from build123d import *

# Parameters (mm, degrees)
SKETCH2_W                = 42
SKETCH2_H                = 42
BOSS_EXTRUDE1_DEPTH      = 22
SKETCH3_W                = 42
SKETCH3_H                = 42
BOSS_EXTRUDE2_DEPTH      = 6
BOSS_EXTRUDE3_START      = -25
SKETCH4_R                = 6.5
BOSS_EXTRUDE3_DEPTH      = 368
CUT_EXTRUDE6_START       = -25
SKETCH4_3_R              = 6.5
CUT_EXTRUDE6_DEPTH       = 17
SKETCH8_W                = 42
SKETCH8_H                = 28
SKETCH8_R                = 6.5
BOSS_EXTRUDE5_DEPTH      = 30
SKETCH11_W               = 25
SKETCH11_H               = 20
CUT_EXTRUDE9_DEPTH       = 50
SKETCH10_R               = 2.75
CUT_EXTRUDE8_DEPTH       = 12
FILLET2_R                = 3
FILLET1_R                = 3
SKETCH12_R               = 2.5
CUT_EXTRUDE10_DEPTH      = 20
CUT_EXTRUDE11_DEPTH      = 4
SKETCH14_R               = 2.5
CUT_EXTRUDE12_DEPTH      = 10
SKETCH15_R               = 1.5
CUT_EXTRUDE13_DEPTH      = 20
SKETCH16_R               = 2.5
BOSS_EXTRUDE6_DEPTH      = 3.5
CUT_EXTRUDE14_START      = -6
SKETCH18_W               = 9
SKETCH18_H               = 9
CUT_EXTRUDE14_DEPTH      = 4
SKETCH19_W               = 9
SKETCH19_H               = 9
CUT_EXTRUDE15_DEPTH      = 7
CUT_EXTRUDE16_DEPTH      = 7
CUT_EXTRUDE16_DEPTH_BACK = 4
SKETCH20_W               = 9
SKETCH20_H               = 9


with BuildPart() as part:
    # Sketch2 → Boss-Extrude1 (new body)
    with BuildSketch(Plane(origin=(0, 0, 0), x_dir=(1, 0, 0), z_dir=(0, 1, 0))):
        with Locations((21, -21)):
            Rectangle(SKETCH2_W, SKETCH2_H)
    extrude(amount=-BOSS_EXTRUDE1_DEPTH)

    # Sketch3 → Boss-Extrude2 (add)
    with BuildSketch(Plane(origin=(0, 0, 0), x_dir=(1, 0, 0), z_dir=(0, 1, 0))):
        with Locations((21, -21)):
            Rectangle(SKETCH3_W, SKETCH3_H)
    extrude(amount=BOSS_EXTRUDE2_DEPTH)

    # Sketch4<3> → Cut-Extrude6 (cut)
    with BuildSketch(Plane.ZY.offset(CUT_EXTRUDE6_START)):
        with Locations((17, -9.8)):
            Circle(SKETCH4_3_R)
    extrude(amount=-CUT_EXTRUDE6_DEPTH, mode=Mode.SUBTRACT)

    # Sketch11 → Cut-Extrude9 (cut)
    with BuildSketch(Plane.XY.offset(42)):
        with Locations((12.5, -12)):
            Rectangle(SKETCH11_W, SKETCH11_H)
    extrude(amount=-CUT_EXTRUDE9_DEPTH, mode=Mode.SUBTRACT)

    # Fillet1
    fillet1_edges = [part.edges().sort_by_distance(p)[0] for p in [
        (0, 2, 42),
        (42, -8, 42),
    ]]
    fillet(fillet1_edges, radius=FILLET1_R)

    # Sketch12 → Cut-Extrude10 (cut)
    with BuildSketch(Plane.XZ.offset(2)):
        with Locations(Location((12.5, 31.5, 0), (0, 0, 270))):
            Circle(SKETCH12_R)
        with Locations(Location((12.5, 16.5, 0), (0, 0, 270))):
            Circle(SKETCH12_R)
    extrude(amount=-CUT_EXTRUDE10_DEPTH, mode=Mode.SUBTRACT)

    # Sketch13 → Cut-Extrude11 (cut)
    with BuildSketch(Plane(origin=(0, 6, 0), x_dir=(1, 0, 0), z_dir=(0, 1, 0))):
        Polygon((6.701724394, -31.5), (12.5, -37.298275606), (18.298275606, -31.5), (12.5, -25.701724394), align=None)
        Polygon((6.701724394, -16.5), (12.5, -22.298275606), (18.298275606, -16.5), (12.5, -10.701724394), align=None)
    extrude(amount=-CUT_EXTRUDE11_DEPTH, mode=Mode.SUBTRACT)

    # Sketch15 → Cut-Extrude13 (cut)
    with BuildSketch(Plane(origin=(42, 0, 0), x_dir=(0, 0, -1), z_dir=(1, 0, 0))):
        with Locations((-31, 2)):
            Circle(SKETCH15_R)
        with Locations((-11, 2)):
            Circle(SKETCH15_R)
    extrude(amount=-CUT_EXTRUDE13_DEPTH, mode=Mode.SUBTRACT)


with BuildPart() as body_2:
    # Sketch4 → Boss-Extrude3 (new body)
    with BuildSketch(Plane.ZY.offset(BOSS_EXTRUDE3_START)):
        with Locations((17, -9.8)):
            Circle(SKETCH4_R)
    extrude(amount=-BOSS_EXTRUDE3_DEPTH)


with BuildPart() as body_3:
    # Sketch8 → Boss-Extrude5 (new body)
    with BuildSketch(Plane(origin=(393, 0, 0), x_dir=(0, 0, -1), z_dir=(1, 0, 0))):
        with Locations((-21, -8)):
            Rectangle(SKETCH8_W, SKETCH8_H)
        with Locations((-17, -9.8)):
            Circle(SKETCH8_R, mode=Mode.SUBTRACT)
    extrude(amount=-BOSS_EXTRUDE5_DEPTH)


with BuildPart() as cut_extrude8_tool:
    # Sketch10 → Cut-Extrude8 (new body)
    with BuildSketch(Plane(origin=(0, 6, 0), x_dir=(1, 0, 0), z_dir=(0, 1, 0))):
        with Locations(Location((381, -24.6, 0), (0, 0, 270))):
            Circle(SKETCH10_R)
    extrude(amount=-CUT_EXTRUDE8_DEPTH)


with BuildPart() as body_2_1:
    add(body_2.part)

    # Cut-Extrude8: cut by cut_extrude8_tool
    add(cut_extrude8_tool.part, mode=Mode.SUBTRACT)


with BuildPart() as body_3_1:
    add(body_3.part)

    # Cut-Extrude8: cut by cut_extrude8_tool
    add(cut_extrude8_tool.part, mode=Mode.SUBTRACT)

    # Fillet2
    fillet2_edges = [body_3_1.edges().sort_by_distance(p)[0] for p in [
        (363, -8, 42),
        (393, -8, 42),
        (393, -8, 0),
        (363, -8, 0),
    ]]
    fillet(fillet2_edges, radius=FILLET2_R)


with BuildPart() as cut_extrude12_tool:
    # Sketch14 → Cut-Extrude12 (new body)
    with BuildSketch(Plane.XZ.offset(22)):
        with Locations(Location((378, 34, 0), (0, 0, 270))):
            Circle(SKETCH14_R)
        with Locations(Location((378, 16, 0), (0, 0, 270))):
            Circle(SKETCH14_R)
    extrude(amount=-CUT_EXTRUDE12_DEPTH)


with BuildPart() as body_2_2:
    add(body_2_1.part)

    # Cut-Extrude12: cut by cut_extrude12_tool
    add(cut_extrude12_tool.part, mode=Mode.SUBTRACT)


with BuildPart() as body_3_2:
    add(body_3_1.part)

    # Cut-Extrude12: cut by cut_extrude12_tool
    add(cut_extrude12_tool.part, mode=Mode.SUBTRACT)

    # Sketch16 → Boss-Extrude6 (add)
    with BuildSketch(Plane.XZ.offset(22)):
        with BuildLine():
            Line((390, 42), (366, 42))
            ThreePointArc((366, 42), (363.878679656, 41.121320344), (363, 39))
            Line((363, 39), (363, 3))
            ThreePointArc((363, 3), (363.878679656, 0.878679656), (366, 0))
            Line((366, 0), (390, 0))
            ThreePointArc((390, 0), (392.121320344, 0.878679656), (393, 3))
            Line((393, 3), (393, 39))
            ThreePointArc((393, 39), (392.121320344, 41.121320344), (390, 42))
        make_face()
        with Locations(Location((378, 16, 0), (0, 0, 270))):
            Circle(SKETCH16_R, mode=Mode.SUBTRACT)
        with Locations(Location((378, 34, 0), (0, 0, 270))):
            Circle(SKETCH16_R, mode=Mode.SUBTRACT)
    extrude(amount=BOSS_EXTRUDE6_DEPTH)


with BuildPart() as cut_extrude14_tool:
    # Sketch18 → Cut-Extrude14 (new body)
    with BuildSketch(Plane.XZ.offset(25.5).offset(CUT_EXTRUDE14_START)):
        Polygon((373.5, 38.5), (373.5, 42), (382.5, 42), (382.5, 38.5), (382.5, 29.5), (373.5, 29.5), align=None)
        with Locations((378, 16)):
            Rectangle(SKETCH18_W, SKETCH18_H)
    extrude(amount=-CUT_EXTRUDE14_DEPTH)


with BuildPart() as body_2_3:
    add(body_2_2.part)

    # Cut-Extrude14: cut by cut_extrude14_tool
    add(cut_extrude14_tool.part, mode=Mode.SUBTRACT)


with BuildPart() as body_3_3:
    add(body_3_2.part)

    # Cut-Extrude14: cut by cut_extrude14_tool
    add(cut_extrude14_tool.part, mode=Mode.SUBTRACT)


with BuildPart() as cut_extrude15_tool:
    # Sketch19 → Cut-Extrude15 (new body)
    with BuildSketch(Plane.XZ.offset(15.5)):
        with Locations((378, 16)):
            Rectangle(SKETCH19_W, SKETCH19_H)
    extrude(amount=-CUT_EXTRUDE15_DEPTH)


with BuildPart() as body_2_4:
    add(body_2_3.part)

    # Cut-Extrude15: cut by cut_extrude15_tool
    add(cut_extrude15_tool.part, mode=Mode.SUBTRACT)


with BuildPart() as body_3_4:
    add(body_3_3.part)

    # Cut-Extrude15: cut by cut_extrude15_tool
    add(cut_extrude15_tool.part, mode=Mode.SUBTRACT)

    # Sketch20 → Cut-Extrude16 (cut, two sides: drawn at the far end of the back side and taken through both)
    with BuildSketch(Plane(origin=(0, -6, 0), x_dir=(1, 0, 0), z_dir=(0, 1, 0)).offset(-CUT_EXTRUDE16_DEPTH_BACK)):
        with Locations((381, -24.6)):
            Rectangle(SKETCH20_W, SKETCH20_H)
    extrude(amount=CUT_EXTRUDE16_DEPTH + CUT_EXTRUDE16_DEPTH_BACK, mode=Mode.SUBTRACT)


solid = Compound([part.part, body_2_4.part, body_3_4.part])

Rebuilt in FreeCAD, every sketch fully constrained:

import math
import FreeCAD as App
import Part
import Sketcher

V = App.Vector
Q = App.Units.Quantity


def edges_at(feature, points):
    """Names of the edges that pass closest to the given points."""
    edges = feature.Shape.Edges
    near = lambda p: min(range(len(edges)), key=lambda i: edges[i].distToShape(Part.Vertex(*p))[0])
    return sorted({f"Edge{near(p) + 1}" for p in points})


def add_polygon(sketch, points):
    """Adds a closed chain of lines whose ends are joined by coincident constraints."""
    first, n = sketch.GeometryCount, len(points)
    for a, b in zip(points, points[1:] + points[:1]):
        sketch.addGeometry(Part.LineSegment(App.Vector(*a, 0), App.Vector(*b, 0)), False)
    for i in range(n):
        sketch.addConstraint(Sketcher.Constraint("Coincident", first + i, 2, first + (i + 1) % n, 1))

doc = App.newDocument("Part")
body = doc.addObject("PartDesign::Body", "Body")

sketch1 = body.newObject("Sketcher::SketchObject", "Sketch")
sketch1.AttachmentSupport = (doc.getObject("XZ_Plane"), [""])
sketch1.MapMode = "FlatFace"
add_polygon(sketch1, [(0, 0), (0, 42), (42, 42), (42, 0)])
sketch1.addConstraint([
    Sketcher.Constraint("Vertical", 0),
    Sketcher.Constraint("Horizontal", 1),
    Sketcher.Constraint("Vertical", 2),
    Sketcher.Constraint("Horizontal", 3),
    Sketcher.Constraint("Coincident", 3, 2, -1, 1),
    Sketcher.Constraint("Equal", 3, 0),
    Sketcher.Constraint("DistanceX", 1, 1, 1, 2, Q("42 mm")),
])
pad1 = body.newObject("PartDesign::Pad", "Pad")
pad1.Profile = sketch1
pad1.Length = 22

sketch2 = body.newObject("Sketcher::SketchObject", "Sketch001")
sketch2.AttachmentSupport = (doc.getObject("XZ_Plane"), [""])
sketch2.MapMode = "FlatFace"
add_polygon(sketch2, [(0, 0), (0, 42), (42, 42), (42, 0)])
sketch2.addConstraint([
    Sketcher.Constraint("Vertical", 0),
    Sketcher.Constraint("Horizontal", 1),
    Sketcher.Constraint("Vertical", 2),
    Sketcher.Constraint("Horizontal", 3),
    Sketcher.Constraint("Coincident", 3, 2, -1, 1),
    Sketcher.Constraint("Equal", 3, 0),
    Sketcher.Constraint("DistanceX", 1, 1, 1, 2, Q("42 mm")),
])
pad2 = body.newObject("PartDesign::Pad", "Pad001")
pad2.Profile = sketch2
pad2.Length = 6
pad2.Reversed = True

sketch3 = body.newObject("Sketcher::SketchObject", "Sketch002")
sketch3.AttachmentSupport = (doc.getObject("YZ_Plane"), [""])
sketch3.MapMode = "FlatFace"
sketch3.AttachmentOffset = App.Placement(V(0, 0, 25), App.Rotation())
sketch3.addGeometry(Part.Circle(V(-10, 17, 0), V(0, 0, 1), 6), False)
sketch3.addConstraint([
    Sketcher.Constraint("Diameter", 0, Q("13 mm")),
    Sketcher.Constraint("DistanceY", -1, 1, 0, 3, Q("17 mm")),
    Sketcher.Constraint("DistanceX", 0, 3, -1, 1, Q("9.8 mm")),
])
pocket1 = body.newObject("PartDesign::Pocket", "Pocket")
pocket1.Profile = sketch3
pocket1.Length = 17
pocket1.Reversed = True

sketch4 = body.newObject("Sketcher::SketchObject", "Sketch003")
sketch4.AttachmentSupport = (doc.getObject("XY_Plane"), [""])
sketch4.MapMode = "FlatFace"
sketch4.AttachmentOffset = App.Placement(V(0, 0, 42), App.Rotation())
add_polygon(sketch4, [(0, -2), (0, -22), (25, -22), (25, -2)])
sketch4.addConstraint([
    Sketcher.Constraint("Vertical", 0),
    Sketcher.Constraint("Horizontal", 1),
    Sketcher.Constraint("Vertical", 2),
    Sketcher.Constraint("Horizontal", 3),
    Sketcher.Constraint("PointOnObject", 0, 2, -2),
    Sketcher.Constraint("DistanceX", 1, 1, 1, 2, Q("25 mm")),
    Sketcher.Constraint("DistanceY", 0, 2, 0, 1, Q("20 mm")),
    Sketcher.Constraint("DistanceY", 0, 2, -1, 1, Q("22 mm")),
])
pocket2 = body.newObject("PartDesign::Pocket", "Pocket001")
pocket2.Profile = sketch4
pocket2.Length = 50
doc.recompute()

fillet = body.newObject("PartDesign::Fillet", "Fillet")
fillet.Base = (pocket2, edges_at(pocket2, [(0, 2, 42), (42, -8, 42)]))
fillet.Radius = 3

sketch5 = body.newObject("Sketcher::SketchObject", "Sketch004")
sketch5.AttachmentSupport = (doc.getObject("XZ_Plane"), [""])
sketch5.MapMode = "FlatFace"
sketch5.AttachmentOffset = App.Placement(V(0, 0, 2), App.Rotation())
sketch5.addGeometry([
    Part.Circle(V(12.5, 31.5, 0), V(0, 0, 1), 2.5),
    Part.Circle(V(12.5, 16.5, 0), V(0, 0, 1), 2.5),
], False)
sketch5.addConstraint([
    Sketcher.Constraint("Equal", 0, 1),
    Sketcher.Constraint("Vertical", 0, 3, 1, 3),
    Sketcher.Constraint("Diameter", 0, Q("5 mm")),
    Sketcher.Constraint("DistanceY", 1, 3, 0, 3, Q("15 mm")),
    Sketcher.Constraint("DistanceX", -1, 1, 0, 3, Q("12.5 mm")),
    Sketcher.Constraint("DistanceY", -1, 1, 0, 3, Q("31.5 mm")),
])
pocket3 = body.newObject("PartDesign::Pocket", "Pocket002")
pocket3.Profile = sketch5
pocket3.Length = 20

sketch6 = body.newObject("Sketcher::SketchObject", "Sketch005")
sketch6.AttachmentSupport = (doc.getObject("XZ_Plane"), [""])
sketch6.MapMode = "FlatFace"
sketch6.AttachmentOffset = App.Placement(V(0, 0, -6), App.Rotation())
add_polygon(sketch6, [(7, 32), (12, 37), (18, 32), (12, 26)])
add_polygon(sketch6, [(7, 16), (12, 22), (18, 16), (12, 11)])
sketch6.addConstraint([
    Sketcher.Constraint("Perpendicular", 0, 1),
    Sketcher.Constraint("Perpendicular", 1, 2),
    Sketcher.Constraint("Perpendicular", 2, 3),
    Sketcher.Constraint("Perpendicular", 3, 4),
    Sketcher.Constraint("Perpendicular", 4, 5),
    Sketcher.Constraint("Perpendicular", 5, 6),
    Sketcher.Constraint("Perpendicular", 6, 7),
    Sketcher.Constraint("Horizontal", 1, 2, 3, 2),
    Sketcher.Constraint("Horizontal", 5, 2, 7, 2),
    Sketcher.Constraint("Vertical", 0, 2, 2, 2),
    Sketcher.Constraint("Vertical", 2, 2, 4, 2),
    Sketcher.Constraint("Vertical", 1, 2, 5, 2),
    Sketcher.Constraint("DistanceY", 4, 2, 0, 2, Q("15 mm")),
    Sketcher.Constraint("Distance", 0, Q("8.2 mm")),
    Sketcher.Constraint("DistanceX", -1, 1, 0, 2, Q("12.5 mm")),
    Sketcher.Constraint("DistanceY", -1, 1, 1, 2, Q("31.5 mm")),
])
pocket4 = body.newObject("PartDesign::Pocket", "Pocket003")
pocket4.Profile = sketch6
pocket4.Length = 4
pocket4.Reversed = True

sketch7 = body.newObject("Sketcher::SketchObject", "Sketch006")
sketch7.AttachmentSupport = (doc.getObject("YZ_Plane"), [""])
sketch7.MapMode = "FlatFace"
sketch7.AttachmentOffset = App.Placement(V(0, 0, 42), App.Rotation())
sketch7.addGeometry([
    Part.Circle(V(2, 31, 0), V(0, 0, 1), 1.5),
    Part.Circle(V(2, 11, 0), V(0, 0, 1), 1.5),
], False)
sketch7.addConstraint([
    Sketcher.Constraint("Equal", 0, 1),
    Sketcher.Constraint("Vertical", 0, 3, 1, 3),
    Sketcher.Constraint("Diameter", 0, Q("3 mm")),
    Sketcher.Constraint("DistanceX", -1, 1, 0, 3, Q("2 mm")),
    Sketcher.Constraint("DistanceY", -1, 1, 0, 3, Q("31 mm")),
    Sketcher.Constraint("DistanceY", -1, 1, 1, 3, Q("11 mm")),
])
pocket5 = body.newObject("PartDesign::Pocket", "Pocket004")
pocket5.Profile = sketch7
pocket5.Length = 20
body2 = doc.addObject("PartDesign::Body", "Body001")

sketch8 = body2.newObject("Sketcher::SketchObject", "Sketch007")
sketch8.AttachmentSupport = (doc.getObject("YZ_Plane001"), [""])
sketch8.MapMode = "FlatFace"
sketch8.AttachmentOffset = App.Placement(V(0, 0, 25), App.Rotation())
sketch8.addGeometry(Part.Circle(V(-10, 17, 0), V(0, 0, 1), 6), False)
sketch8.addConstraint([
    Sketcher.Constraint("Diameter", 0, Q("13 mm")),
    Sketcher.Constraint("DistanceY", -1, 1, 0, 3, Q("17 mm")),
    Sketcher.Constraint("DistanceX", 0, 3, -1, 1, Q("9.8 mm")),
])
pad3 = body2.newObject("PartDesign::Pad", "Pad002")
pad3.Profile = sketch8
pad3.Length = 368
body3 = doc.addObject("PartDesign::Body", "Body002")

sketch9 = body3.newObject("Sketcher::SketchObject", "Sketch008")
sketch9.AttachmentSupport = (doc.getObject("YZ_Plane002"), [""])
sketch9.MapMode = "FlatFace"
sketch9.AttachmentOffset = App.Placement(V(0, 0, 393), App.Rotation())
add_polygon(sketch9, [(6, 42), (-22, 42), (-22, 0), (6, 0)])
sketch9.addGeometry(Part.Circle(V(-10, 17, 0), V(0, 0, 1), 6), False)
sketch9.addConstraint([
    Sketcher.Constraint("Horizontal", 0),
    Sketcher.Constraint("Vertical", 1),
    Sketcher.Constraint("Horizontal", 2),
    Sketcher.Constraint("Vertical", 3),
    Sketcher.Constraint("PointOnObject", 1, 2, -1),
    Sketcher.Constraint("Diameter", 4, Q("13 mm")),
    Sketcher.Constraint("DistanceX", 0, 2, 0, 1, Q("28 mm")),
    Sketcher.Constraint("DistanceY", 1, 2, 1, 1, Q("42 mm")),
    Sketcher.Constraint("DistanceY", -1, 1, 4, 3, Q("17 mm")),
    Sketcher.Constraint("DistanceX", 0, 2, -1, 1, Q("22 mm")),
    Sketcher.Constraint("DistanceX", 4, 3, -1, 1, Q("9.8 mm")),
])
pad4 = body3.newObject("PartDesign::Pad", "Pad003")
pad4.Profile = sketch9
pad4.Length = 30
pad4.Reversed = True
body4 = doc.addObject("PartDesign::Body", "Body003")

sketch10 = body4.newObject("Sketcher::SketchObject", "Sketch009")
sketch10.AttachmentSupport = (doc.getObject("XZ_Plane003"), [""])
sketch10.MapMode = "FlatFace"
sketch10.AttachmentOffset = App.Placement(V(0, 0, -6), App.Rotation())
sketch10.addGeometry(Part.Circle(V(381, 24.6, 0), V(0, 0, 1), 2.8), False)
sketch10.addConstraint([
    Sketcher.Constraint("Diameter", 0, Q("5.5 mm")),
    Sketcher.Constraint("DistanceX", -1, 1, 0, 3, Q("381 mm")),
    Sketcher.Constraint("DistanceY", -1, 1, 0, 3, Q("24.6 mm")),
])
pad5 = body4.newObject("PartDesign::Pad", "Pad004")
pad5.Profile = sketch10
pad5.Length = 12
doc.recompute()

body5 = doc.addObject("PartDesign::Body", "Body004")
body5.BaseFeature = body4
boolean = body2.newObject("PartDesign::Boolean", "Boolean")
boolean.Type = "Cut"
boolean.addObjects([body5])
doc.recompute()

boolean2 = body3.newObject("PartDesign::Boolean", "Boolean001")
boolean2.Type = "Cut"
boolean2.addObjects([body4])
doc.recompute()

fillet2 = body3.newObject("PartDesign::Fillet", "Fillet001")
fillet2.Base = (boolean2, edges_at(boolean2, [
    (363, -8, 42),
    (393, -8, 42),
    (393, -8, 0),
    (363, -8, 0),
]))
fillet2.Radius = 3
body6 = doc.addObject("PartDesign::Body", "Body005")
body6.AllowCompound = True

sketch11 = body6.newObject("Sketcher::SketchObject", "Sketch010")
sketch11.AttachmentSupport = (doc.getObject("XZ_Plane005"), [""])
sketch11.MapMode = "FlatFace"
sketch11.AttachmentOffset = App.Placement(V(0, 0, 22), App.Rotation())
sketch11.addGeometry([
    Part.Circle(V(378, 34, 0), V(0, 0, 1), 2.5),
    Part.Circle(V(378, 16, 0), V(0, 0, 1), 2.5),
], False)
sketch11.addConstraint([
    Sketcher.Constraint("Equal", 0, 1),
    Sketcher.Constraint("Vertical", 0, 3, 1, 3),
    Sketcher.Constraint("Diameter", 0, Q("5 mm")),
    Sketcher.Constraint("DistanceX", -1, 1, 0, 3, Q("378 mm")),
    Sketcher.Constraint("DistanceY", -1, 1, 0, 3, Q("34 mm")),
    Sketcher.Constraint("DistanceY", -1, 1, 1, 3, Q("16 mm")),
])
pad6 = body6.newObject("PartDesign::Pad", "Pad005")
pad6.Profile = sketch11
pad6.Length = 10
pad6.Reversed = True
doc.recompute()

body7 = doc.addObject("PartDesign::Body", "Body006")
body7.BaseFeature = body6
boolean3 = body2.newObject("PartDesign::Boolean", "Boolean002")
boolean3.Type = "Cut"
boolean3.addObjects([body7])
doc.recompute()

boolean4 = body3.newObject("PartDesign::Boolean", "Boolean003")
boolean4.Type = "Cut"
boolean4.addObjects([body6])

sketch12 = body3.newObject("Sketcher::SketchObject", "Sketch011")
sketch12.AttachmentSupport = (doc.getObject("XZ_Plane002"), [""])
sketch12.MapMode = "FlatFace"
sketch12.AttachmentOffset = App.Placement(V(0, 0, 22), App.Rotation())
sketch12.addGeometry([
    Part.LineSegment(V(390, 42, 0), V(366, 42, 0)),
    Part.ArcOfCircle(Part.Circle(V(366, 39, 0), V(0, 0, 1), 3), math.radians(90), math.radians(180)),
    Part.LineSegment(V(363, 39, 0), V(363, 3, 0)),
    Part.ArcOfCircle(Part.Circle(V(366, 3, 0), V(0, 0, 1), 3), math.radians(180), math.radians(270)),
    Part.LineSegment(V(366, 0, 0), V(390, 0, 0)),
    Part.ArcOfCircle(Part.Circle(V(390, 3, 0), V(0, 0, 1), 3), math.radians(-90), math.radians(0)),
    Part.LineSegment(V(393, 3, 0), V(393, 39, 0)),
    Part.ArcOfCircle(Part.Circle(V(390, 39, 0), V(0, 0, 1), 3), math.radians(0), math.radians(90)),
    Part.Circle(V(378, 16, 0), V(0, 0, 1), 2.5),
    Part.Circle(V(378, 34, 0), V(0, 0, 1), 2.5),
], False)
sketch12.addConstraint([
    Sketcher.Constraint("Tangent", 0, 2, 1, 1),
    Sketcher.Constraint("Tangent", 1, 2, 2, 1),
    Sketcher.Constraint("Tangent", 2, 2, 3, 1),
    Sketcher.Constraint("Tangent", 3, 2, 4, 1),
    Sketcher.Constraint("Tangent", 4, 2, 5, 1),
    Sketcher.Constraint("Tangent", 5, 2, 6, 1),
    Sketcher.Constraint("Tangent", 6, 2, 7, 1),
    Sketcher.Constraint("Tangent", 7, 2, 0, 1),
    Sketcher.Constraint("Horizontal", 0),
    Sketcher.Constraint("Vertical", 2),
    Sketcher.Constraint("Horizontal", 4),
    Sketcher.Constraint("Vertical", 6),
    Sketcher.Constraint("Equal", 1, 3),
    Sketcher.Constraint("Equal", 3, 5),
    Sketcher.Constraint("Equal", 5, 7),
    Sketcher.Constraint("Equal", 8, 9),
    Sketcher.Constraint("PointOnObject", 3, 2, -1),
    Sketcher.Constraint("Vertical", 8, 3, 9, 3),
    Sketcher.Constraint("Diameter", 8, Q("5 mm")),
    Sketcher.Constraint("Radius", 1, Q("3 mm")),
    Sketcher.Constraint("DistanceX", 0, 2, 0, 1, Q("24 mm")),
    Sketcher.Constraint("DistanceY", 2, 2, 2, 1, Q("36 mm")),
    Sketcher.Constraint("DistanceX", -1, 1, 1, 3, Q("366 mm")),
    Sketcher.Constraint("DistanceX", -1, 1, 8, 3, Q("378 mm")),
    Sketcher.Constraint("DistanceY", -1, 1, 8, 3, Q("16 mm")),
    Sketcher.Constraint("DistanceY", -1, 1, 9, 3, Q("34 mm")),
])
pad7 = body3.newObject("PartDesign::Pad", "Pad006")
pad7.Profile = sketch12
pad7.Length = 3.5
body8 = doc.addObject("PartDesign::Body", "Body007")
body8.AllowCompound = True

sketch13 = body8.newObject("Sketcher::SketchObject", "Sketch012")
sketch13.AttachmentSupport = (doc.getObject("XZ_Plane007"), [""])
sketch13.MapMode = "FlatFace"
sketch13.AttachmentOffset = App.Placement(V(0, 0, 19.5), App.Rotation())
add_polygon(sketch13, [(374, 42), (374, 30), (382, 30), (382, 42)])
add_polygon(sketch13, [(374, 20), (374, 12), (382, 12), (382, 20)])
sketch13.addConstraint([
    Sketcher.Constraint("Vertical", 0),
    Sketcher.Constraint("Horizontal", 1),
    Sketcher.Constraint("Vertical", 2),
    Sketcher.Constraint("Horizontal", 3),
    Sketcher.Constraint("Vertical", 4),
    Sketcher.Constraint("Horizontal", 5),
    Sketcher.Constraint("Vertical", 6),
    Sketcher.Constraint("Horizontal", 7),
    Sketcher.Constraint("Vertical", 3, 2, 4, 2),
    Sketcher.Constraint("Vertical", 2, 2, 5, 2),
    Sketcher.Constraint("Equal", 7, 4),
    Sketcher.Constraint("DistanceX", 1, 1, 1, 2, Q("9 mm")),
    Sketcher.Constraint("DistanceY", 0, 2, 0, 1, Q("12.5 mm")),
    Sketcher.Constraint("DistanceY", -1, 1, 2, 2, Q("42 mm")),
    Sketcher.Constraint("DistanceY", 4, 2, 0, 2, Q("18 mm")),
    Sketcher.Constraint("DistanceX", -1, 1, 0, 2, Q("373.5 mm")),
])
pad8 = body8.newObject("PartDesign::Pad", "Pad007")
pad8.Profile = sketch13
pad8.Length = 4
pad8.Reversed = True
doc.recompute()

body9 = doc.addObject("PartDesign::Body", "Body008")
body9.BaseFeature = body8
boolean5 = body2.newObject("PartDesign::Boolean", "Boolean004")
boolean5.Type = "Cut"
boolean5.addObjects([body9])
doc.recompute()

boolean6 = body3.newObject("PartDesign::Boolean", "Boolean005")
boolean6.Type = "Cut"
boolean6.addObjects([body8])
body10 = doc.addObject("PartDesign::Body", "Body009")

sketch14 = body10.newObject("Sketcher::SketchObject", "Sketch013")
sketch14.AttachmentSupport = (doc.getObject("XZ_Plane009"), [""])
sketch14.MapMode = "FlatFace"
sketch14.AttachmentOffset = App.Placement(V(0, 0, 15.5), App.Rotation())
add_polygon(sketch14, [(374, 20), (374, 12), (382, 12), (382, 20)])
sketch14.addConstraint([
    Sketcher.Constraint("Vertical", 0),
    Sketcher.Constraint("Horizontal", 1),
    Sketcher.Constraint("Vertical", 2),
    Sketcher.Constraint("Horizontal", 3),
    Sketcher.Constraint("Equal", 3, 0),
    Sketcher.Constraint("DistanceX", 1, 1, 1, 2, Q("9 mm")),
    Sketcher.Constraint("DistanceX", -1, 1, 0, 2, Q("373.5 mm")),
    Sketcher.Constraint("DistanceY", -1, 1, 0, 2, Q("11.5 mm")),
])
pad9 = body10.newObject("PartDesign::Pad", "Pad008")
pad9.Profile = sketch14
pad9.Length = 7
pad9.Reversed = True
doc.recompute()

body11 = doc.addObject("PartDesign::Body", "Body010")
body11.BaseFeature = body10
boolean7 = body2.newObject("PartDesign::Boolean", "Boolean006")
boolean7.Type = "Cut"
boolean7.addObjects([body11])
doc.recompute()

boolean8 = body3.newObject("PartDesign::Boolean", "Boolean007")
boolean8.Type = "Cut"
boolean8.addObjects([body10])

sketch15 = body3.newObject("Sketcher::SketchObject", "Sketch014")
sketch15.AttachmentSupport = (doc.getObject("XZ_Plane002"), [""])
sketch15.MapMode = "FlatFace"
sketch15.AttachmentOffset = App.Placement(V(0, 0, 6), App.Rotation())
add_polygon(sketch15, [(376, 20), (376, 29), (386, 29), (386, 20)])
sketch15.addConstraint([
    Sketcher.Constraint("Vertical", 0),
    Sketcher.Constraint("Horizontal", 1),
    Sketcher.Constraint("Vertical", 2),
    Sketcher.Constraint("Horizontal", 3),
    Sketcher.Constraint("Equal", 3, 0),
    Sketcher.Constraint("DistanceX", 1, 1, 1, 2, Q("9 mm")),
    Sketcher.Constraint("DistanceX", -1, 1, 0, 2, Q("376.5 mm")),
    Sketcher.Constraint("DistanceY", -1, 1, 0, 2, Q("29.1 mm")),
])
pocket6 = body3.newObject("PartDesign::Pocket", "Pocket005")
pocket6.Profile = sketch15
pocket6.Type = "TwoLengths"
pocket6.Length = 7
pocket6.Length2 = 4

doc.recompute()
